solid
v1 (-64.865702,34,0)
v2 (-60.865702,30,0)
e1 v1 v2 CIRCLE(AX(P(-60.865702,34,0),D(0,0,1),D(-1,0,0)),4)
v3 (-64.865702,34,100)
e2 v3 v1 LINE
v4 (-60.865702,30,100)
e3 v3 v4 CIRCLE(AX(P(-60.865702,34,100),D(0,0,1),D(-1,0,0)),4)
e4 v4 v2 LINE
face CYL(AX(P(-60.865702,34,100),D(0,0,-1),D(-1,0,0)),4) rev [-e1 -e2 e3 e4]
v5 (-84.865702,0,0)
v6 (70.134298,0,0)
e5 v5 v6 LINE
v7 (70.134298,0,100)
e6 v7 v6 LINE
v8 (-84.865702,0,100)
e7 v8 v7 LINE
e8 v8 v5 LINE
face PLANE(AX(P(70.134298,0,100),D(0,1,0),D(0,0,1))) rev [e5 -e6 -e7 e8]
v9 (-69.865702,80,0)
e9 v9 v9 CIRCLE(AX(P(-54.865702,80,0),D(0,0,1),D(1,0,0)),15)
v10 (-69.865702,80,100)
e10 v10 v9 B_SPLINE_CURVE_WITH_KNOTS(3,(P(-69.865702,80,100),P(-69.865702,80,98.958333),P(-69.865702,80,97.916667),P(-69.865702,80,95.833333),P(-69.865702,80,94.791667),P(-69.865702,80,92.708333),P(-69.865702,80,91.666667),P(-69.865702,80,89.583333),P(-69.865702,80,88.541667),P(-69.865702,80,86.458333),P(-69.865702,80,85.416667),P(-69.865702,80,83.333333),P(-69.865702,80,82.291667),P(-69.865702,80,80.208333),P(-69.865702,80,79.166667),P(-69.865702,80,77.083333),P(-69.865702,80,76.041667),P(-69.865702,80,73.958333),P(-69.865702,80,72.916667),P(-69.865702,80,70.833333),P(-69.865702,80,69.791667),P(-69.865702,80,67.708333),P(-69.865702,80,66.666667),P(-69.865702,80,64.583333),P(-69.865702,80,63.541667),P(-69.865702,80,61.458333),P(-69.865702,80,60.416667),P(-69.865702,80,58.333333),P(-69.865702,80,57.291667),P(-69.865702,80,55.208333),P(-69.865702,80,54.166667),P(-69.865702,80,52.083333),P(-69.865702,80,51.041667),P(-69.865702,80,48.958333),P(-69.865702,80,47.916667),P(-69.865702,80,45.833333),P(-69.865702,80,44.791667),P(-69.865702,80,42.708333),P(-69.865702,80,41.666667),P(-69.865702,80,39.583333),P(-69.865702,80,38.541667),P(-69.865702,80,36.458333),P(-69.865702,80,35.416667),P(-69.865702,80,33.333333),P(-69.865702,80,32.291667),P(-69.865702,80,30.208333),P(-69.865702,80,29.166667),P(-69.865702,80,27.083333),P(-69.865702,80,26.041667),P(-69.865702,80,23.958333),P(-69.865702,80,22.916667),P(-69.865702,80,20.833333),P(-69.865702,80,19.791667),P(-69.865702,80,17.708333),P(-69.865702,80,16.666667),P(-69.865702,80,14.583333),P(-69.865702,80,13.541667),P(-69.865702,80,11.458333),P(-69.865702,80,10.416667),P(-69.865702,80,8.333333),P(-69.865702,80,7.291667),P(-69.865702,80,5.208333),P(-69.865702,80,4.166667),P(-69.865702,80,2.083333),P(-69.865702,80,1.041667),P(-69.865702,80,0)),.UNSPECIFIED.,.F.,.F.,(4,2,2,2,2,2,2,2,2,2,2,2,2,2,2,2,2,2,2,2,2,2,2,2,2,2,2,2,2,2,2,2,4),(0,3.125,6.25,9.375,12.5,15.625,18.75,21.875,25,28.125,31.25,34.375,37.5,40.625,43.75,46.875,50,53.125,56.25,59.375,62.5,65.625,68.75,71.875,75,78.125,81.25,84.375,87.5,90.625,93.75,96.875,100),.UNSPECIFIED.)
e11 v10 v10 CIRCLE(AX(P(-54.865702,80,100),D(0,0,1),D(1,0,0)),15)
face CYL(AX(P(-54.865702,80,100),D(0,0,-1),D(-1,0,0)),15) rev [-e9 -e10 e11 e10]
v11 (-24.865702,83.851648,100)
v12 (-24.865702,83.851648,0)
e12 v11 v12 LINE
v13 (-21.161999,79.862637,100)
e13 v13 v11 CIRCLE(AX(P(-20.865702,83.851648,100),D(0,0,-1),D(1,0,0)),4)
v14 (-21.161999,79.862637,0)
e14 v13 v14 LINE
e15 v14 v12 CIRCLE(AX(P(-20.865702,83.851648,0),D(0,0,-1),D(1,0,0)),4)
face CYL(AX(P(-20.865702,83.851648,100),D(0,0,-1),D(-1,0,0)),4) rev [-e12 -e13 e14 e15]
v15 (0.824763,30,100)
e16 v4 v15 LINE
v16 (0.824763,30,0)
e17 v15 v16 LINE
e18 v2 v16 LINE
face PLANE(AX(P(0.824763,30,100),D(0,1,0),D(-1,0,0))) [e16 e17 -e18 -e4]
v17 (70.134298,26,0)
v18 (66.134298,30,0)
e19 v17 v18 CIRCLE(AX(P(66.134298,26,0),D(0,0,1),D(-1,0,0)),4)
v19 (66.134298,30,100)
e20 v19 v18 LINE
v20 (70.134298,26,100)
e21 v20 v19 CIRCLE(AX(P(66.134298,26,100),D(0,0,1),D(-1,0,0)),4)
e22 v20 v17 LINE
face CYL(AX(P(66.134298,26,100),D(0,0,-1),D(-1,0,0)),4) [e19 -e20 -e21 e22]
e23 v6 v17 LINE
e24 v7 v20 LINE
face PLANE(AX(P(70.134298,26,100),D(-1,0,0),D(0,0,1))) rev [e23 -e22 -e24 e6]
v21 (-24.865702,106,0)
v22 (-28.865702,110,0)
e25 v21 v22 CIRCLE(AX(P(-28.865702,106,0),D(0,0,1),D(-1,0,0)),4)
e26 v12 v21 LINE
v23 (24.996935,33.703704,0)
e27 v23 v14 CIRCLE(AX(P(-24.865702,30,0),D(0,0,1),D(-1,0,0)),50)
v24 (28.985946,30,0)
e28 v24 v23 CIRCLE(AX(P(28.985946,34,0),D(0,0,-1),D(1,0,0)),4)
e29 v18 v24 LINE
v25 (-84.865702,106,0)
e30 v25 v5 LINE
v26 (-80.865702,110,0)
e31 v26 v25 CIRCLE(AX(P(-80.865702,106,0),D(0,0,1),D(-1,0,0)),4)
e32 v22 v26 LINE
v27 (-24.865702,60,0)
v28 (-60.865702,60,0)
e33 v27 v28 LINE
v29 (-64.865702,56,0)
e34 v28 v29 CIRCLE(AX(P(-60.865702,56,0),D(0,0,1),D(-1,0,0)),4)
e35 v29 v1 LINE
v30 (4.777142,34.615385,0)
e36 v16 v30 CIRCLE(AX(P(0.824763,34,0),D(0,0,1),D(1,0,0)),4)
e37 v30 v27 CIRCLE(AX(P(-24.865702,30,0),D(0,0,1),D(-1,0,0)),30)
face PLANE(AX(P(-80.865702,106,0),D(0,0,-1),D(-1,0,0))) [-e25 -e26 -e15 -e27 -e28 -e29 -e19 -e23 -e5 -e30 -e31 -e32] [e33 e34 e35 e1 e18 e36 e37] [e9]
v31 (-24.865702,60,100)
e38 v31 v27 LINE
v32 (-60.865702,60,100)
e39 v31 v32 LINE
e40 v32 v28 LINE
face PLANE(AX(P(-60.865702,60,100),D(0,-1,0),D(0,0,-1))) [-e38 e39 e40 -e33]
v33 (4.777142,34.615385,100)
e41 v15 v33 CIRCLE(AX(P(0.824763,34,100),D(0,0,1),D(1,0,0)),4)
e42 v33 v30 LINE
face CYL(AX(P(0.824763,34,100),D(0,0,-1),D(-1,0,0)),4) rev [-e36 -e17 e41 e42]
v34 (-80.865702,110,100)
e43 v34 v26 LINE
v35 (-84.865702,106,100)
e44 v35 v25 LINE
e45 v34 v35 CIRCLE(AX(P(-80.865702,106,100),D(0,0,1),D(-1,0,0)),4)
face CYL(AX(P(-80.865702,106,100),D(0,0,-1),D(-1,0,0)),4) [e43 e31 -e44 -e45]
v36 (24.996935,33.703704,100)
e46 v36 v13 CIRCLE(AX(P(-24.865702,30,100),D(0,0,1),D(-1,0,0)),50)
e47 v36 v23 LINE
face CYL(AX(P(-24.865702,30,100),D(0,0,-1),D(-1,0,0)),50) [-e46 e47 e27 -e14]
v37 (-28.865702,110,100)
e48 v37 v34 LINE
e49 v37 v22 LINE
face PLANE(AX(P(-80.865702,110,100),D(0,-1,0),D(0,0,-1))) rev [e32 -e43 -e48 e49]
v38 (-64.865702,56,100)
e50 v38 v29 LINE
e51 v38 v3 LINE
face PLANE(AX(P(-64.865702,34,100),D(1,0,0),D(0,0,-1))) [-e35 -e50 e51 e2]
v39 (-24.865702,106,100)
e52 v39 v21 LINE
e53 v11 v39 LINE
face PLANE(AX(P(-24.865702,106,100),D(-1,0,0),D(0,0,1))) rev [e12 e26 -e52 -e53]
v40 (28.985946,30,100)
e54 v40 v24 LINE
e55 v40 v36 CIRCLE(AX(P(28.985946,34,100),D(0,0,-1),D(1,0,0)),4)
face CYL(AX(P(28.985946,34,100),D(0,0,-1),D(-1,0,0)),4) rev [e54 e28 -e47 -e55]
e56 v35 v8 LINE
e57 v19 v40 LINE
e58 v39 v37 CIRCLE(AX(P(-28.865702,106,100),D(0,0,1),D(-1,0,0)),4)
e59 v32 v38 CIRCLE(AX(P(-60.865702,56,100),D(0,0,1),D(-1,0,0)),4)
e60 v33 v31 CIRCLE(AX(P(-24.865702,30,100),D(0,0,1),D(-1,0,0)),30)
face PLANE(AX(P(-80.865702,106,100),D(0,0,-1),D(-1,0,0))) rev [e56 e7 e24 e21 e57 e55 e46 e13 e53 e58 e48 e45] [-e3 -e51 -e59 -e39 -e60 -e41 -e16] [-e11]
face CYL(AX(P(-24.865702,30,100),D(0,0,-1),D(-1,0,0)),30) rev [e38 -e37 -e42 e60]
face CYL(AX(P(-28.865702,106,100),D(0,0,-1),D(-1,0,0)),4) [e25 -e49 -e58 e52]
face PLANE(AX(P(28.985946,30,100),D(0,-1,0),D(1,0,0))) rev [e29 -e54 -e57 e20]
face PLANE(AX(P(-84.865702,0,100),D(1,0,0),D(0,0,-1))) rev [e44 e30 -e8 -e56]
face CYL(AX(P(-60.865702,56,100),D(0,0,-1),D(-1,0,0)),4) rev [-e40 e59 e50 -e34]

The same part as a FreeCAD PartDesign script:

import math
import FreeCAD as App
import Part
import Sketcher

V = App.Vector
Q = App.Units.Quantity

doc = App.newDocument("Part")
body = doc.addObject("PartDesign::Body", "Body")

# Sketch on XY plane
sketch1 = doc.addObject("Sketcher::SketchObject", "Sketch")
body.addObject(sketch1)
sketch1.AttachmentSupport = (doc.XY_Plane, [""])
sketch1.MapMode = "FlatFace"
sketch1.addGeometry([
    Part.LineSegment(V(-84.865702, 0, 0), V(70.134298, 0, 0)),  # 0
    Part.LineSegment(V(70.134298, 0, 0), V(70.134298, 26, 0)),  # 1
    Part.ArcOfCircle(Part.Circle(V(66.134298, 26, 0), V(0, 0, 1), 4), math.radians(0), math.radians(90)),  # 2
    Part.LineSegment(V(66.134298, 30, 0), V(28.985946, 30, 0)),  # 3
    Part.ArcOfCircle(Part.Circle(V(28.985946, 34, 0), V(0, 0, 1), 4), math.radians(-175.751977), math.radians(-90)),  # 4
    Part.ArcOfCircle(Part.Circle(V(-24.865702, 30, 0), V(0, 0, 1), 50), math.radians(4.248023), math.radians(85.751977)),  # 5
    Part.ArcOfCircle(Part.Circle(V(-20.865702, 83.851648, 0), V(0, 0, 1), 4), math.radians(180), math.radians(265.751977)),  # 6
    Part.LineSegment(V(-24.865702, 83.851648, 0), V(-24.865702, 106, 0)),  # 7
    Part.ArcOfCircle(Part.Circle(V(-28.865702, 106, 0), V(0, 0, 1), 4), math.radians(0), math.radians(90)),  # 8
    Part.LineSegment(V(-28.865702, 110, 0), V(-80.865702, 110, 0)),  # 9
    Part.ArcOfCircle(Part.Circle(V(-80.865702, 106, 0), V(0, 0, 1), 4), math.radians(90), math.radians(180)),  # 10
    Part.LineSegment(V(-84.865702, 106, 0), V(-84.865702, 0, 0)),  # 11
    Part.LineSegment(V(0.824763, 30, 0), V(-60.865702, 30, 0)),  # 12
    Part.ArcOfCircle(Part.Circle(V(-60.865702, 34, 0), V(0, 0, 1), 4), math.radians(180), math.radians(270)),  # 13
    Part.LineSegment(V(-64.865702, 34, 0), V(-64.865702, 56, 0)),  # 14
    Part.ArcOfCircle(Part.Circle(V(-60.865702, 56, 0), V(0, 0, 1), 4), math.radians(90), math.radians(180)),  # 15
    Part.LineSegment(V(-60.865702, 60, 0), V(-24.865702, 60, 0)),  # 16
    Part.ArcOfCircle(Part.Circle(V(-24.865702, 30, 0), V(0, 0, 1), 30), math.radians(8.849883), math.radians(90)),  # 17
    Part.ArcOfCircle(Part.Circle(V(0.824763, 34, 0), V(0, 0, 1), 4), math.radians(-90), math.radians(8.849883)),  # 18
    Part.Circle(V(-54.865702, 80, 0), V(0, 0, 1), 15),  # 19
], False)
sketch1.addConstraint([
    Sketcher.Constraint("Coincident", 0, 2, 1, 1),
    Sketcher.Constraint("Tangent", 1, 2, 2, 1),
    Sketcher.Constraint("Tangent", 2, 2, 3, 1),
    Sketcher.Constraint("Tangent", 3, 2, 4, 2),
    Sketcher.Constraint("Tangent", 4, 1, 5, 1),
    Sketcher.Constraint("Tangent", 5, 2, 6, 2),
    Sketcher.Constraint("Tangent", 6, 1, 7, 1),
    Sketcher.Constraint("Tangent", 7, 2, 8, 1),
    Sketcher.Constraint("Tangent", 8, 2, 9, 1),
    Sketcher.Constraint("Tangent", 9, 2, 10, 1),
    Sketcher.Constraint("Tangent", 10, 2, 11, 1),
    Sketcher.Constraint("Coincident", 11, 2, 0, 1),
    Sketcher.Constraint("Tangent", 12, 2, 13, 2),
    Sketcher.Constraint("Tangent", 13, 1, 14, 1),
    Sketcher.Constraint("Tangent", 14, 2, 15, 2),
    Sketcher.Constraint("Tangent", 15, 1, 16, 1),
    Sketcher.Constraint("Tangent", 16, 2, 17, 2),
    Sketcher.Constraint("Tangent", 17, 1, 18, 2),
    Sketcher.Constraint("Tangent", 18, 1, 12, 1),
    Sketcher.Constraint("Horizontal", 0),
    Sketcher.Constraint("Vertical", 1),
    Sketcher.Constraint("Horizontal", 3),
    Sketcher.Constraint("Vertical", 7),
    Sketcher.Constraint("Horizontal", 9),
    Sketcher.Constraint("Vertical", 11),
    Sketcher.Constraint("Horizontal", 12),
    Sketcher.Constraint("Vertical", 14),
    Sketcher.Constraint("Horizontal", 16),
    Sketcher.Constraint("Coincident", 17, 3, 5, 3),
    Sketcher.Constraint("Equal", 2, 4),
    Sketcher.Constraint("Equal", 4, 6),
    Sketcher.Constraint("Equal", 6, 8),
    Sketcher.Constraint("Equal", 8, 10),
    Sketcher.Constraint("Equal", 10, 13),
    Sketcher.Constraint("Equal", 13, 15),
    Sketcher.Constraint("Equal", 15, 18),
    Sketcher.Constraint("PointOnObject", 0, 2, -1),
    Sketcher.Constraint("Horizontal", 4, 3, 13, 3),
    Sketcher.Constraint("Horizontal", 17, 3, 2, 2),
    Sketcher.Constraint("Vertical", 17, 3, 6, 1),
    Sketcher.Constraint("Diameter", 19, Q("30 mm")),
    Sketcher.Constraint("Radius", 2, Q("4 mm")),
    Sketcher.Constraint("Radius", 5, Q("50 mm")),
    Sketcher.Constraint("Radius", 17, Q("30 mm")),
    Sketcher.Constraint("DistanceX", 0, 1, 0, 2, Q("155 mm")),
    Sketcher.Constraint("DistanceX", 9, 2, 9, 1, Q("52 mm")),
    Sketcher.Constraint("DistanceX", 16, 1, 16, 2, Q("36 mm")),
    Sketcher.Constraint("DistanceY", 1, 1, 1, 2, Q("26 mm")),
    Sketcher.Constraint("DistanceY", 11, 2, 11, 1, Q("106 mm")),
    Sketcher.Constraint("DistanceY", -1, 1, 19, 3, Q("80 mm")),
    Sketcher.Constraint("DistanceX", 15, 3, 19, 3, Q("6 mm")),
    Sketcher.Constraint("DistanceX", 5, 2, -1, 1, Q("21.161999 mm")),
])
pad1 = doc.addObject("PartDesign::Pad", "Pad")
body.addObject(pad1)
pad1.Profile = sketch1
pad1.Length = 100

doc.recompute()
